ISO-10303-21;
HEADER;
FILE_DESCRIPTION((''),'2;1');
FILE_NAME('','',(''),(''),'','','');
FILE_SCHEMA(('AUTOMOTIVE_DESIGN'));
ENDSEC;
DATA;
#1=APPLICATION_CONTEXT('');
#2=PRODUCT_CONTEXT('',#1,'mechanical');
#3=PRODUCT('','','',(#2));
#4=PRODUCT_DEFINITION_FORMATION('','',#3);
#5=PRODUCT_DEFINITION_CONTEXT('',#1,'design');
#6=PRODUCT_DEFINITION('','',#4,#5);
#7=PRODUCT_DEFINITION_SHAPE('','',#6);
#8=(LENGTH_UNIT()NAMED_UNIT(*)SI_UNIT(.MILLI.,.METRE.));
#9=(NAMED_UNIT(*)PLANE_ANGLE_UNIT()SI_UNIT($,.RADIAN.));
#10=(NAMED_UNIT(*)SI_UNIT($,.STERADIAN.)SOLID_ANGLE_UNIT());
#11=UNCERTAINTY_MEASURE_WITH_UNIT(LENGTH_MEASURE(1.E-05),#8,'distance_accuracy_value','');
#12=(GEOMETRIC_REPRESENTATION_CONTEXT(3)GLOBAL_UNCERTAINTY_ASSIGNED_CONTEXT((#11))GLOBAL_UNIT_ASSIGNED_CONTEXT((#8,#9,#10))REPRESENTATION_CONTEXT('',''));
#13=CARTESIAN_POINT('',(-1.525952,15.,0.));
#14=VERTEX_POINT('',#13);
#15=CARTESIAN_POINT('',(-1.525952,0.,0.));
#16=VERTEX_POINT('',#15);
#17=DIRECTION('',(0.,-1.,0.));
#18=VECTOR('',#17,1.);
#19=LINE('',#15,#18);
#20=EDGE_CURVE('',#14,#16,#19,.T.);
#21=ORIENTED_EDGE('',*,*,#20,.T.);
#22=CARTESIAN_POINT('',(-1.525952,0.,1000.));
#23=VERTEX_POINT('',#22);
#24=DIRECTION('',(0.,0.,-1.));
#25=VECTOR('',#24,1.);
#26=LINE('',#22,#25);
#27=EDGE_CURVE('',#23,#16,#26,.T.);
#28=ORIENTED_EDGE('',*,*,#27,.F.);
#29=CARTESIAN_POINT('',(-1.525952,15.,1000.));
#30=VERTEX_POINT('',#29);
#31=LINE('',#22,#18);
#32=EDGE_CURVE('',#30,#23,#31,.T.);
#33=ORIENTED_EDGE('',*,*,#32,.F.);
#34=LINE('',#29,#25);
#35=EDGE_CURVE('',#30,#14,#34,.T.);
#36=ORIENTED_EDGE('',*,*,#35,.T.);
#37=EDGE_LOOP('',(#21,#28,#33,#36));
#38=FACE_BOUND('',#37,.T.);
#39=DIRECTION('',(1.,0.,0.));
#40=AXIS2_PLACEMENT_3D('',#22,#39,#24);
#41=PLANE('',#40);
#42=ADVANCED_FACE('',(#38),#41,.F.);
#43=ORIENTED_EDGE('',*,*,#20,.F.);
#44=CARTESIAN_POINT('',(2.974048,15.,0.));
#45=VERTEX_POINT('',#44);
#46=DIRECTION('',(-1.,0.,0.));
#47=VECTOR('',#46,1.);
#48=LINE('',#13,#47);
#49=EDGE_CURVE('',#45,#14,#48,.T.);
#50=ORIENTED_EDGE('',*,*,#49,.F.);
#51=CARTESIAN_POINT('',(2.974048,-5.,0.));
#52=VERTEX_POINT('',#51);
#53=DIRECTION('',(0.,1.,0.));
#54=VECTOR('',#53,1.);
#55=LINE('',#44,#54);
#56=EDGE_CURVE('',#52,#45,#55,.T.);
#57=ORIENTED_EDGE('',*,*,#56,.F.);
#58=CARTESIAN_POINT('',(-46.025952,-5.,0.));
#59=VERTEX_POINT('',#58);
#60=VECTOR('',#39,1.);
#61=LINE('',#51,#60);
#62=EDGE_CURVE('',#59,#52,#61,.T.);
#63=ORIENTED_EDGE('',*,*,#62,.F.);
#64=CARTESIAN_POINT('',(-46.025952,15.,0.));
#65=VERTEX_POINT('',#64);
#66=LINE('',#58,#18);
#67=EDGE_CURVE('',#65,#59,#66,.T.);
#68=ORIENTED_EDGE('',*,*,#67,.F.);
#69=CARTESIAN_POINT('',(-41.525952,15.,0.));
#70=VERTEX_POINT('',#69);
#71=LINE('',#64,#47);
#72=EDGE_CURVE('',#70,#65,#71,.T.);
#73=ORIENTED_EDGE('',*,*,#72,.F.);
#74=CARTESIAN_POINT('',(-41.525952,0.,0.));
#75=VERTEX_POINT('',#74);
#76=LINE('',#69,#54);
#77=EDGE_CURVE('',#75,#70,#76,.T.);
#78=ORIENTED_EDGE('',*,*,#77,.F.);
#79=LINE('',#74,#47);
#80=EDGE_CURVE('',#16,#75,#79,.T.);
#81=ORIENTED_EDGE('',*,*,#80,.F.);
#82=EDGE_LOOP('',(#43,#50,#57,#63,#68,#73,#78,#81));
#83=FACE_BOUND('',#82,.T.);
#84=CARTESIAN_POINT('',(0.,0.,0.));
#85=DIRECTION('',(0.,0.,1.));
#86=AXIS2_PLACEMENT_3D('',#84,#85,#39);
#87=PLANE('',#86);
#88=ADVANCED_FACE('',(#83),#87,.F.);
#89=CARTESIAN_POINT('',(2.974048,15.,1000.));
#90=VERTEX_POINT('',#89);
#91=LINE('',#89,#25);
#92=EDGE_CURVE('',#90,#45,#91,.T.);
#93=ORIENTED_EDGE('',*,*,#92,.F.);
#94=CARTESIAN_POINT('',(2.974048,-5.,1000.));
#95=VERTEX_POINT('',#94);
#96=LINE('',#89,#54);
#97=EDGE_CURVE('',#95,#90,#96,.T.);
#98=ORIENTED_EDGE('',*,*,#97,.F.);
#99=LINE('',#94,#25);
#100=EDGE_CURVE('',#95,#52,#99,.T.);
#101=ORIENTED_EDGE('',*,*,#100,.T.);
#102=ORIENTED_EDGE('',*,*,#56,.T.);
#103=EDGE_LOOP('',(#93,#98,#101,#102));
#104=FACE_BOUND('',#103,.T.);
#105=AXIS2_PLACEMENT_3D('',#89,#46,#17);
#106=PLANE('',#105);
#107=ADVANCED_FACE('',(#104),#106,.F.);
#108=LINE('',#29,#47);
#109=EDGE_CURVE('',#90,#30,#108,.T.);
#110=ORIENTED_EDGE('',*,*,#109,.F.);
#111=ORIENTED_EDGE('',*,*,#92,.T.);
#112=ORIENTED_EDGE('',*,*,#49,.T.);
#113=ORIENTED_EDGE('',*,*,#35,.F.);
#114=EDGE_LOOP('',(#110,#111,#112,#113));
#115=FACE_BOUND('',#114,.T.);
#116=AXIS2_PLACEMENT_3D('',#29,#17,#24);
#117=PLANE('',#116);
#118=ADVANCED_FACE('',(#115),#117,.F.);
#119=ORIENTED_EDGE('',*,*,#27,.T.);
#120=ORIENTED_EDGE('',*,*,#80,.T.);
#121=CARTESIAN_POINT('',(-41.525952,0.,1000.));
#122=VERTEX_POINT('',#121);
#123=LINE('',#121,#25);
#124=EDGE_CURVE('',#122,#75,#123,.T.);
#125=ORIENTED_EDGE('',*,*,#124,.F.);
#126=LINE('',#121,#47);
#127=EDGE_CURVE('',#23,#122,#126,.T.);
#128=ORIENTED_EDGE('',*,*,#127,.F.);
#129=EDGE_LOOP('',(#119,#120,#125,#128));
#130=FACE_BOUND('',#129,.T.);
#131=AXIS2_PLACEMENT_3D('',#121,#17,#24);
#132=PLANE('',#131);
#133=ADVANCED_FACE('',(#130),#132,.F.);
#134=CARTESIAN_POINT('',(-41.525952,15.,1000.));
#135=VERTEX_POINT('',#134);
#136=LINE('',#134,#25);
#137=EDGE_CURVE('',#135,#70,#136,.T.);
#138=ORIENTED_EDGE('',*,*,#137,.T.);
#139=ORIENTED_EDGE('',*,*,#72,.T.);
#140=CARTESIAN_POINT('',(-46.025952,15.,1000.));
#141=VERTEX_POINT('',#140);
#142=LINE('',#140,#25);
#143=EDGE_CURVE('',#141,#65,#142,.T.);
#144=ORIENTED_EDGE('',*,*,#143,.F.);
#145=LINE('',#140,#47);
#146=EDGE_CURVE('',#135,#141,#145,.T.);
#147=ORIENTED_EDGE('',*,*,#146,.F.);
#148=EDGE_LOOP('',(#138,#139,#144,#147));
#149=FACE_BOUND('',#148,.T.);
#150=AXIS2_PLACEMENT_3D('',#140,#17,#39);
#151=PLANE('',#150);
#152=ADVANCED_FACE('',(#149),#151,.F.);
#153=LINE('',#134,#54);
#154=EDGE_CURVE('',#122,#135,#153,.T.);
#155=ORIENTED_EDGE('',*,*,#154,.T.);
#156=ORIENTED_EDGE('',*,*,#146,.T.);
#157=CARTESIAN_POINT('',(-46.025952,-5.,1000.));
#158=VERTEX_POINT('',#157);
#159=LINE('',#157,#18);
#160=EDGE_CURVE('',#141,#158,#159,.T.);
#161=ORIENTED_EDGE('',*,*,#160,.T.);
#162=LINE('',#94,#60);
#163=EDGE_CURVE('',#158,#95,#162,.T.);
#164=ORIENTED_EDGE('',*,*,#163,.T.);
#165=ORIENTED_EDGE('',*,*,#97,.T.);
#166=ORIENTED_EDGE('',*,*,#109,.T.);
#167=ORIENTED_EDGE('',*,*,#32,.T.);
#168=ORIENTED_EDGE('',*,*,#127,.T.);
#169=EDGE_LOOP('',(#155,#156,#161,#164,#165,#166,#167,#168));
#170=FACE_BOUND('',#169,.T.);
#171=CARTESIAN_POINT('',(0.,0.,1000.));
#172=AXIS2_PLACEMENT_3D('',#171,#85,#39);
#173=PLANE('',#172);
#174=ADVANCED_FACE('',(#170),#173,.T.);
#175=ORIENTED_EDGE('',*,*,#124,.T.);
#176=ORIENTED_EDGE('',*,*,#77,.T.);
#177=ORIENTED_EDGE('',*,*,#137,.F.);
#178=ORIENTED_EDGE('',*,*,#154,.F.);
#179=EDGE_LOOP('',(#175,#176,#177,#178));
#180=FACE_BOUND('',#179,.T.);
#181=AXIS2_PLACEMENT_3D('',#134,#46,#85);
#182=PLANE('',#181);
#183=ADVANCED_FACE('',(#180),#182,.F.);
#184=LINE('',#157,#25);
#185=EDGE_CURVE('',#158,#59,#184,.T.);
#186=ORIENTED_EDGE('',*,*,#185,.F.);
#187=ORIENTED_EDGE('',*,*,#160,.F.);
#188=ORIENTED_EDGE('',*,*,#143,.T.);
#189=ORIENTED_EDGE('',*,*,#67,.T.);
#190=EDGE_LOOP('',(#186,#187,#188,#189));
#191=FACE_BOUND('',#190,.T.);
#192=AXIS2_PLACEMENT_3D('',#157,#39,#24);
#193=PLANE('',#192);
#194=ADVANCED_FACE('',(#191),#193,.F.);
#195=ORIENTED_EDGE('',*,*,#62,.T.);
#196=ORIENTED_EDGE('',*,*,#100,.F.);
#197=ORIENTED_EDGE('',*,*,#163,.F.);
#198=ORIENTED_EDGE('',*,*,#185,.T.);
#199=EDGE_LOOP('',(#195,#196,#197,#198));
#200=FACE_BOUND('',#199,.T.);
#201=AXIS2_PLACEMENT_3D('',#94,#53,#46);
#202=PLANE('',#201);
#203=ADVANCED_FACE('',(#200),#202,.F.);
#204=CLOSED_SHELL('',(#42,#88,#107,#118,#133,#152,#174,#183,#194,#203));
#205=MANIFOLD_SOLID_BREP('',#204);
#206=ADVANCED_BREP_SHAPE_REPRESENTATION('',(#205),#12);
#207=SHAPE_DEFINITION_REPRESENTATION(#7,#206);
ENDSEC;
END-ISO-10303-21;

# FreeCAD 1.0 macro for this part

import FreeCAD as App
import Part
import Sketcher
Q = App.Units.Quantity

doc = App.newDocument("Part")
body = doc.addObject("PartDesign::Body", "Body")

sketch1 = body.newObject("Sketcher::SketchObject", "Sketch")
sketch1.AttachmentSupport = (doc.getObject("XY_Plane"), [""])
sketch1.MapMode = "FlatFace"
sketch1.addGeometry(Part.LineSegment(App.Vector(-1.5, 0, 0), App.Vector(-41.5, 0, 0)), False)
sketch1.addGeometry(Part.LineSegment(App.Vector(-41.5, 0, 0), App.Vector(-41.5, 15, 0)), False)
sketch1.addGeometry(Part.LineSegment(App.Vector(-41.5, 15, 0), App.Vector(-46, 15, 0)), False)
sketch1.addGeometry(Part.LineSegment(App.Vector(-46, 15, 0), App.Vector(-46, -5, 0)), False)
sketch1.addGeometry(Part.LineSegment(App.Vector(-46, -5, 0), App.Vector(3, -5, 0)), False)
sketch1.addGeometry(Part.LineSegment(App.Vector(3, -5, 0), App.Vector(3, 15, 0)), False)
sketch1.addGeometry(Part.LineSegment(App.Vector(3, 15, 0), App.Vector(-1.5, 15, 0)), False)
sketch1.addGeometry(Part.LineSegment(App.Vector(-1.5, 15, 0), App.Vector(-1.5, 0, 0)), False)
sketch1.addConstraint(Sketcher.Constraint("Coincident", 0, 2, 1, 1))
sketch1.addConstraint(Sketcher.Constraint("Coincident", 1, 2, 2, 1))
sketch1.addConstraint(Sketcher.Constraint("Coincident", 2, 2, 3, 1))
sketch1.addConstraint(Sketcher.Constraint("Coincident", 3, 2, 4, 1))
sketch1.addConstraint(Sketcher.Constraint("Coincident", 4, 2, 5, 1))
sketch1.addConstraint(Sketcher.Constraint("Coincident", 5, 2, 6, 1))
sketch1.addConstraint(Sketcher.Constraint("Coincident", 6, 2, 7, 1))
sketch1.addConstraint(Sketcher.Constraint("Coincident", 7, 2, 0, 1))
sketch1.addConstraint(Sketcher.Constraint("Horizontal", 0))
sketch1.addConstraint(Sketcher.Constraint("Vertical", 1))
sketch1.addConstraint(Sketcher.Constraint("Horizontal", 2))
sketch1.addConstraint(Sketcher.Constraint("Vertical", 3))
sketch1.addConstraint(Sketcher.Constraint("Horizontal", 4))
sketch1.addConstraint(Sketcher.Constraint("Vertical", 5))
sketch1.addConstraint(Sketcher.Constraint("Horizontal", 6))
sketch1.addConstraint(Sketcher.Constraint("Vertical", 7))
sketch1.addConstraint(Sketcher.Constraint("PointOnObject", 0, 2, -1))
sketch1.addConstraint(Sketcher.Constraint("Horizontal", 2, 2, 5, 2))
sketch1.addConstraint(Sketcher.Constraint("Equal", 2, 6))
sketch1.addConstraint(Sketcher.Constraint("DistanceX", 0, 2, 0, 1, Q("40 mm")))
sketch1.addConstraint(Sketcher.Constraint("DistanceX", 4, 1, 4, 2, Q("49 mm")))
sketch1.addConstraint(Sketcher.Constraint("DistanceY", 1, 1, 1, 2, Q("15 mm")))
sketch1.addConstraint(Sketcher.Constraint("DistanceY", 3, 2, 3, 1, Q("20 mm")))
sketch1.addConstraint(Sketcher.Constraint("DistanceX", 0, 2, -1, 1, Q("41.525952 mm")))
pad1 = body.newObject("PartDesign::Pad", "Pad")
pad1.Profile = sketch1
pad1.Length = 1000

doc.recompute()
